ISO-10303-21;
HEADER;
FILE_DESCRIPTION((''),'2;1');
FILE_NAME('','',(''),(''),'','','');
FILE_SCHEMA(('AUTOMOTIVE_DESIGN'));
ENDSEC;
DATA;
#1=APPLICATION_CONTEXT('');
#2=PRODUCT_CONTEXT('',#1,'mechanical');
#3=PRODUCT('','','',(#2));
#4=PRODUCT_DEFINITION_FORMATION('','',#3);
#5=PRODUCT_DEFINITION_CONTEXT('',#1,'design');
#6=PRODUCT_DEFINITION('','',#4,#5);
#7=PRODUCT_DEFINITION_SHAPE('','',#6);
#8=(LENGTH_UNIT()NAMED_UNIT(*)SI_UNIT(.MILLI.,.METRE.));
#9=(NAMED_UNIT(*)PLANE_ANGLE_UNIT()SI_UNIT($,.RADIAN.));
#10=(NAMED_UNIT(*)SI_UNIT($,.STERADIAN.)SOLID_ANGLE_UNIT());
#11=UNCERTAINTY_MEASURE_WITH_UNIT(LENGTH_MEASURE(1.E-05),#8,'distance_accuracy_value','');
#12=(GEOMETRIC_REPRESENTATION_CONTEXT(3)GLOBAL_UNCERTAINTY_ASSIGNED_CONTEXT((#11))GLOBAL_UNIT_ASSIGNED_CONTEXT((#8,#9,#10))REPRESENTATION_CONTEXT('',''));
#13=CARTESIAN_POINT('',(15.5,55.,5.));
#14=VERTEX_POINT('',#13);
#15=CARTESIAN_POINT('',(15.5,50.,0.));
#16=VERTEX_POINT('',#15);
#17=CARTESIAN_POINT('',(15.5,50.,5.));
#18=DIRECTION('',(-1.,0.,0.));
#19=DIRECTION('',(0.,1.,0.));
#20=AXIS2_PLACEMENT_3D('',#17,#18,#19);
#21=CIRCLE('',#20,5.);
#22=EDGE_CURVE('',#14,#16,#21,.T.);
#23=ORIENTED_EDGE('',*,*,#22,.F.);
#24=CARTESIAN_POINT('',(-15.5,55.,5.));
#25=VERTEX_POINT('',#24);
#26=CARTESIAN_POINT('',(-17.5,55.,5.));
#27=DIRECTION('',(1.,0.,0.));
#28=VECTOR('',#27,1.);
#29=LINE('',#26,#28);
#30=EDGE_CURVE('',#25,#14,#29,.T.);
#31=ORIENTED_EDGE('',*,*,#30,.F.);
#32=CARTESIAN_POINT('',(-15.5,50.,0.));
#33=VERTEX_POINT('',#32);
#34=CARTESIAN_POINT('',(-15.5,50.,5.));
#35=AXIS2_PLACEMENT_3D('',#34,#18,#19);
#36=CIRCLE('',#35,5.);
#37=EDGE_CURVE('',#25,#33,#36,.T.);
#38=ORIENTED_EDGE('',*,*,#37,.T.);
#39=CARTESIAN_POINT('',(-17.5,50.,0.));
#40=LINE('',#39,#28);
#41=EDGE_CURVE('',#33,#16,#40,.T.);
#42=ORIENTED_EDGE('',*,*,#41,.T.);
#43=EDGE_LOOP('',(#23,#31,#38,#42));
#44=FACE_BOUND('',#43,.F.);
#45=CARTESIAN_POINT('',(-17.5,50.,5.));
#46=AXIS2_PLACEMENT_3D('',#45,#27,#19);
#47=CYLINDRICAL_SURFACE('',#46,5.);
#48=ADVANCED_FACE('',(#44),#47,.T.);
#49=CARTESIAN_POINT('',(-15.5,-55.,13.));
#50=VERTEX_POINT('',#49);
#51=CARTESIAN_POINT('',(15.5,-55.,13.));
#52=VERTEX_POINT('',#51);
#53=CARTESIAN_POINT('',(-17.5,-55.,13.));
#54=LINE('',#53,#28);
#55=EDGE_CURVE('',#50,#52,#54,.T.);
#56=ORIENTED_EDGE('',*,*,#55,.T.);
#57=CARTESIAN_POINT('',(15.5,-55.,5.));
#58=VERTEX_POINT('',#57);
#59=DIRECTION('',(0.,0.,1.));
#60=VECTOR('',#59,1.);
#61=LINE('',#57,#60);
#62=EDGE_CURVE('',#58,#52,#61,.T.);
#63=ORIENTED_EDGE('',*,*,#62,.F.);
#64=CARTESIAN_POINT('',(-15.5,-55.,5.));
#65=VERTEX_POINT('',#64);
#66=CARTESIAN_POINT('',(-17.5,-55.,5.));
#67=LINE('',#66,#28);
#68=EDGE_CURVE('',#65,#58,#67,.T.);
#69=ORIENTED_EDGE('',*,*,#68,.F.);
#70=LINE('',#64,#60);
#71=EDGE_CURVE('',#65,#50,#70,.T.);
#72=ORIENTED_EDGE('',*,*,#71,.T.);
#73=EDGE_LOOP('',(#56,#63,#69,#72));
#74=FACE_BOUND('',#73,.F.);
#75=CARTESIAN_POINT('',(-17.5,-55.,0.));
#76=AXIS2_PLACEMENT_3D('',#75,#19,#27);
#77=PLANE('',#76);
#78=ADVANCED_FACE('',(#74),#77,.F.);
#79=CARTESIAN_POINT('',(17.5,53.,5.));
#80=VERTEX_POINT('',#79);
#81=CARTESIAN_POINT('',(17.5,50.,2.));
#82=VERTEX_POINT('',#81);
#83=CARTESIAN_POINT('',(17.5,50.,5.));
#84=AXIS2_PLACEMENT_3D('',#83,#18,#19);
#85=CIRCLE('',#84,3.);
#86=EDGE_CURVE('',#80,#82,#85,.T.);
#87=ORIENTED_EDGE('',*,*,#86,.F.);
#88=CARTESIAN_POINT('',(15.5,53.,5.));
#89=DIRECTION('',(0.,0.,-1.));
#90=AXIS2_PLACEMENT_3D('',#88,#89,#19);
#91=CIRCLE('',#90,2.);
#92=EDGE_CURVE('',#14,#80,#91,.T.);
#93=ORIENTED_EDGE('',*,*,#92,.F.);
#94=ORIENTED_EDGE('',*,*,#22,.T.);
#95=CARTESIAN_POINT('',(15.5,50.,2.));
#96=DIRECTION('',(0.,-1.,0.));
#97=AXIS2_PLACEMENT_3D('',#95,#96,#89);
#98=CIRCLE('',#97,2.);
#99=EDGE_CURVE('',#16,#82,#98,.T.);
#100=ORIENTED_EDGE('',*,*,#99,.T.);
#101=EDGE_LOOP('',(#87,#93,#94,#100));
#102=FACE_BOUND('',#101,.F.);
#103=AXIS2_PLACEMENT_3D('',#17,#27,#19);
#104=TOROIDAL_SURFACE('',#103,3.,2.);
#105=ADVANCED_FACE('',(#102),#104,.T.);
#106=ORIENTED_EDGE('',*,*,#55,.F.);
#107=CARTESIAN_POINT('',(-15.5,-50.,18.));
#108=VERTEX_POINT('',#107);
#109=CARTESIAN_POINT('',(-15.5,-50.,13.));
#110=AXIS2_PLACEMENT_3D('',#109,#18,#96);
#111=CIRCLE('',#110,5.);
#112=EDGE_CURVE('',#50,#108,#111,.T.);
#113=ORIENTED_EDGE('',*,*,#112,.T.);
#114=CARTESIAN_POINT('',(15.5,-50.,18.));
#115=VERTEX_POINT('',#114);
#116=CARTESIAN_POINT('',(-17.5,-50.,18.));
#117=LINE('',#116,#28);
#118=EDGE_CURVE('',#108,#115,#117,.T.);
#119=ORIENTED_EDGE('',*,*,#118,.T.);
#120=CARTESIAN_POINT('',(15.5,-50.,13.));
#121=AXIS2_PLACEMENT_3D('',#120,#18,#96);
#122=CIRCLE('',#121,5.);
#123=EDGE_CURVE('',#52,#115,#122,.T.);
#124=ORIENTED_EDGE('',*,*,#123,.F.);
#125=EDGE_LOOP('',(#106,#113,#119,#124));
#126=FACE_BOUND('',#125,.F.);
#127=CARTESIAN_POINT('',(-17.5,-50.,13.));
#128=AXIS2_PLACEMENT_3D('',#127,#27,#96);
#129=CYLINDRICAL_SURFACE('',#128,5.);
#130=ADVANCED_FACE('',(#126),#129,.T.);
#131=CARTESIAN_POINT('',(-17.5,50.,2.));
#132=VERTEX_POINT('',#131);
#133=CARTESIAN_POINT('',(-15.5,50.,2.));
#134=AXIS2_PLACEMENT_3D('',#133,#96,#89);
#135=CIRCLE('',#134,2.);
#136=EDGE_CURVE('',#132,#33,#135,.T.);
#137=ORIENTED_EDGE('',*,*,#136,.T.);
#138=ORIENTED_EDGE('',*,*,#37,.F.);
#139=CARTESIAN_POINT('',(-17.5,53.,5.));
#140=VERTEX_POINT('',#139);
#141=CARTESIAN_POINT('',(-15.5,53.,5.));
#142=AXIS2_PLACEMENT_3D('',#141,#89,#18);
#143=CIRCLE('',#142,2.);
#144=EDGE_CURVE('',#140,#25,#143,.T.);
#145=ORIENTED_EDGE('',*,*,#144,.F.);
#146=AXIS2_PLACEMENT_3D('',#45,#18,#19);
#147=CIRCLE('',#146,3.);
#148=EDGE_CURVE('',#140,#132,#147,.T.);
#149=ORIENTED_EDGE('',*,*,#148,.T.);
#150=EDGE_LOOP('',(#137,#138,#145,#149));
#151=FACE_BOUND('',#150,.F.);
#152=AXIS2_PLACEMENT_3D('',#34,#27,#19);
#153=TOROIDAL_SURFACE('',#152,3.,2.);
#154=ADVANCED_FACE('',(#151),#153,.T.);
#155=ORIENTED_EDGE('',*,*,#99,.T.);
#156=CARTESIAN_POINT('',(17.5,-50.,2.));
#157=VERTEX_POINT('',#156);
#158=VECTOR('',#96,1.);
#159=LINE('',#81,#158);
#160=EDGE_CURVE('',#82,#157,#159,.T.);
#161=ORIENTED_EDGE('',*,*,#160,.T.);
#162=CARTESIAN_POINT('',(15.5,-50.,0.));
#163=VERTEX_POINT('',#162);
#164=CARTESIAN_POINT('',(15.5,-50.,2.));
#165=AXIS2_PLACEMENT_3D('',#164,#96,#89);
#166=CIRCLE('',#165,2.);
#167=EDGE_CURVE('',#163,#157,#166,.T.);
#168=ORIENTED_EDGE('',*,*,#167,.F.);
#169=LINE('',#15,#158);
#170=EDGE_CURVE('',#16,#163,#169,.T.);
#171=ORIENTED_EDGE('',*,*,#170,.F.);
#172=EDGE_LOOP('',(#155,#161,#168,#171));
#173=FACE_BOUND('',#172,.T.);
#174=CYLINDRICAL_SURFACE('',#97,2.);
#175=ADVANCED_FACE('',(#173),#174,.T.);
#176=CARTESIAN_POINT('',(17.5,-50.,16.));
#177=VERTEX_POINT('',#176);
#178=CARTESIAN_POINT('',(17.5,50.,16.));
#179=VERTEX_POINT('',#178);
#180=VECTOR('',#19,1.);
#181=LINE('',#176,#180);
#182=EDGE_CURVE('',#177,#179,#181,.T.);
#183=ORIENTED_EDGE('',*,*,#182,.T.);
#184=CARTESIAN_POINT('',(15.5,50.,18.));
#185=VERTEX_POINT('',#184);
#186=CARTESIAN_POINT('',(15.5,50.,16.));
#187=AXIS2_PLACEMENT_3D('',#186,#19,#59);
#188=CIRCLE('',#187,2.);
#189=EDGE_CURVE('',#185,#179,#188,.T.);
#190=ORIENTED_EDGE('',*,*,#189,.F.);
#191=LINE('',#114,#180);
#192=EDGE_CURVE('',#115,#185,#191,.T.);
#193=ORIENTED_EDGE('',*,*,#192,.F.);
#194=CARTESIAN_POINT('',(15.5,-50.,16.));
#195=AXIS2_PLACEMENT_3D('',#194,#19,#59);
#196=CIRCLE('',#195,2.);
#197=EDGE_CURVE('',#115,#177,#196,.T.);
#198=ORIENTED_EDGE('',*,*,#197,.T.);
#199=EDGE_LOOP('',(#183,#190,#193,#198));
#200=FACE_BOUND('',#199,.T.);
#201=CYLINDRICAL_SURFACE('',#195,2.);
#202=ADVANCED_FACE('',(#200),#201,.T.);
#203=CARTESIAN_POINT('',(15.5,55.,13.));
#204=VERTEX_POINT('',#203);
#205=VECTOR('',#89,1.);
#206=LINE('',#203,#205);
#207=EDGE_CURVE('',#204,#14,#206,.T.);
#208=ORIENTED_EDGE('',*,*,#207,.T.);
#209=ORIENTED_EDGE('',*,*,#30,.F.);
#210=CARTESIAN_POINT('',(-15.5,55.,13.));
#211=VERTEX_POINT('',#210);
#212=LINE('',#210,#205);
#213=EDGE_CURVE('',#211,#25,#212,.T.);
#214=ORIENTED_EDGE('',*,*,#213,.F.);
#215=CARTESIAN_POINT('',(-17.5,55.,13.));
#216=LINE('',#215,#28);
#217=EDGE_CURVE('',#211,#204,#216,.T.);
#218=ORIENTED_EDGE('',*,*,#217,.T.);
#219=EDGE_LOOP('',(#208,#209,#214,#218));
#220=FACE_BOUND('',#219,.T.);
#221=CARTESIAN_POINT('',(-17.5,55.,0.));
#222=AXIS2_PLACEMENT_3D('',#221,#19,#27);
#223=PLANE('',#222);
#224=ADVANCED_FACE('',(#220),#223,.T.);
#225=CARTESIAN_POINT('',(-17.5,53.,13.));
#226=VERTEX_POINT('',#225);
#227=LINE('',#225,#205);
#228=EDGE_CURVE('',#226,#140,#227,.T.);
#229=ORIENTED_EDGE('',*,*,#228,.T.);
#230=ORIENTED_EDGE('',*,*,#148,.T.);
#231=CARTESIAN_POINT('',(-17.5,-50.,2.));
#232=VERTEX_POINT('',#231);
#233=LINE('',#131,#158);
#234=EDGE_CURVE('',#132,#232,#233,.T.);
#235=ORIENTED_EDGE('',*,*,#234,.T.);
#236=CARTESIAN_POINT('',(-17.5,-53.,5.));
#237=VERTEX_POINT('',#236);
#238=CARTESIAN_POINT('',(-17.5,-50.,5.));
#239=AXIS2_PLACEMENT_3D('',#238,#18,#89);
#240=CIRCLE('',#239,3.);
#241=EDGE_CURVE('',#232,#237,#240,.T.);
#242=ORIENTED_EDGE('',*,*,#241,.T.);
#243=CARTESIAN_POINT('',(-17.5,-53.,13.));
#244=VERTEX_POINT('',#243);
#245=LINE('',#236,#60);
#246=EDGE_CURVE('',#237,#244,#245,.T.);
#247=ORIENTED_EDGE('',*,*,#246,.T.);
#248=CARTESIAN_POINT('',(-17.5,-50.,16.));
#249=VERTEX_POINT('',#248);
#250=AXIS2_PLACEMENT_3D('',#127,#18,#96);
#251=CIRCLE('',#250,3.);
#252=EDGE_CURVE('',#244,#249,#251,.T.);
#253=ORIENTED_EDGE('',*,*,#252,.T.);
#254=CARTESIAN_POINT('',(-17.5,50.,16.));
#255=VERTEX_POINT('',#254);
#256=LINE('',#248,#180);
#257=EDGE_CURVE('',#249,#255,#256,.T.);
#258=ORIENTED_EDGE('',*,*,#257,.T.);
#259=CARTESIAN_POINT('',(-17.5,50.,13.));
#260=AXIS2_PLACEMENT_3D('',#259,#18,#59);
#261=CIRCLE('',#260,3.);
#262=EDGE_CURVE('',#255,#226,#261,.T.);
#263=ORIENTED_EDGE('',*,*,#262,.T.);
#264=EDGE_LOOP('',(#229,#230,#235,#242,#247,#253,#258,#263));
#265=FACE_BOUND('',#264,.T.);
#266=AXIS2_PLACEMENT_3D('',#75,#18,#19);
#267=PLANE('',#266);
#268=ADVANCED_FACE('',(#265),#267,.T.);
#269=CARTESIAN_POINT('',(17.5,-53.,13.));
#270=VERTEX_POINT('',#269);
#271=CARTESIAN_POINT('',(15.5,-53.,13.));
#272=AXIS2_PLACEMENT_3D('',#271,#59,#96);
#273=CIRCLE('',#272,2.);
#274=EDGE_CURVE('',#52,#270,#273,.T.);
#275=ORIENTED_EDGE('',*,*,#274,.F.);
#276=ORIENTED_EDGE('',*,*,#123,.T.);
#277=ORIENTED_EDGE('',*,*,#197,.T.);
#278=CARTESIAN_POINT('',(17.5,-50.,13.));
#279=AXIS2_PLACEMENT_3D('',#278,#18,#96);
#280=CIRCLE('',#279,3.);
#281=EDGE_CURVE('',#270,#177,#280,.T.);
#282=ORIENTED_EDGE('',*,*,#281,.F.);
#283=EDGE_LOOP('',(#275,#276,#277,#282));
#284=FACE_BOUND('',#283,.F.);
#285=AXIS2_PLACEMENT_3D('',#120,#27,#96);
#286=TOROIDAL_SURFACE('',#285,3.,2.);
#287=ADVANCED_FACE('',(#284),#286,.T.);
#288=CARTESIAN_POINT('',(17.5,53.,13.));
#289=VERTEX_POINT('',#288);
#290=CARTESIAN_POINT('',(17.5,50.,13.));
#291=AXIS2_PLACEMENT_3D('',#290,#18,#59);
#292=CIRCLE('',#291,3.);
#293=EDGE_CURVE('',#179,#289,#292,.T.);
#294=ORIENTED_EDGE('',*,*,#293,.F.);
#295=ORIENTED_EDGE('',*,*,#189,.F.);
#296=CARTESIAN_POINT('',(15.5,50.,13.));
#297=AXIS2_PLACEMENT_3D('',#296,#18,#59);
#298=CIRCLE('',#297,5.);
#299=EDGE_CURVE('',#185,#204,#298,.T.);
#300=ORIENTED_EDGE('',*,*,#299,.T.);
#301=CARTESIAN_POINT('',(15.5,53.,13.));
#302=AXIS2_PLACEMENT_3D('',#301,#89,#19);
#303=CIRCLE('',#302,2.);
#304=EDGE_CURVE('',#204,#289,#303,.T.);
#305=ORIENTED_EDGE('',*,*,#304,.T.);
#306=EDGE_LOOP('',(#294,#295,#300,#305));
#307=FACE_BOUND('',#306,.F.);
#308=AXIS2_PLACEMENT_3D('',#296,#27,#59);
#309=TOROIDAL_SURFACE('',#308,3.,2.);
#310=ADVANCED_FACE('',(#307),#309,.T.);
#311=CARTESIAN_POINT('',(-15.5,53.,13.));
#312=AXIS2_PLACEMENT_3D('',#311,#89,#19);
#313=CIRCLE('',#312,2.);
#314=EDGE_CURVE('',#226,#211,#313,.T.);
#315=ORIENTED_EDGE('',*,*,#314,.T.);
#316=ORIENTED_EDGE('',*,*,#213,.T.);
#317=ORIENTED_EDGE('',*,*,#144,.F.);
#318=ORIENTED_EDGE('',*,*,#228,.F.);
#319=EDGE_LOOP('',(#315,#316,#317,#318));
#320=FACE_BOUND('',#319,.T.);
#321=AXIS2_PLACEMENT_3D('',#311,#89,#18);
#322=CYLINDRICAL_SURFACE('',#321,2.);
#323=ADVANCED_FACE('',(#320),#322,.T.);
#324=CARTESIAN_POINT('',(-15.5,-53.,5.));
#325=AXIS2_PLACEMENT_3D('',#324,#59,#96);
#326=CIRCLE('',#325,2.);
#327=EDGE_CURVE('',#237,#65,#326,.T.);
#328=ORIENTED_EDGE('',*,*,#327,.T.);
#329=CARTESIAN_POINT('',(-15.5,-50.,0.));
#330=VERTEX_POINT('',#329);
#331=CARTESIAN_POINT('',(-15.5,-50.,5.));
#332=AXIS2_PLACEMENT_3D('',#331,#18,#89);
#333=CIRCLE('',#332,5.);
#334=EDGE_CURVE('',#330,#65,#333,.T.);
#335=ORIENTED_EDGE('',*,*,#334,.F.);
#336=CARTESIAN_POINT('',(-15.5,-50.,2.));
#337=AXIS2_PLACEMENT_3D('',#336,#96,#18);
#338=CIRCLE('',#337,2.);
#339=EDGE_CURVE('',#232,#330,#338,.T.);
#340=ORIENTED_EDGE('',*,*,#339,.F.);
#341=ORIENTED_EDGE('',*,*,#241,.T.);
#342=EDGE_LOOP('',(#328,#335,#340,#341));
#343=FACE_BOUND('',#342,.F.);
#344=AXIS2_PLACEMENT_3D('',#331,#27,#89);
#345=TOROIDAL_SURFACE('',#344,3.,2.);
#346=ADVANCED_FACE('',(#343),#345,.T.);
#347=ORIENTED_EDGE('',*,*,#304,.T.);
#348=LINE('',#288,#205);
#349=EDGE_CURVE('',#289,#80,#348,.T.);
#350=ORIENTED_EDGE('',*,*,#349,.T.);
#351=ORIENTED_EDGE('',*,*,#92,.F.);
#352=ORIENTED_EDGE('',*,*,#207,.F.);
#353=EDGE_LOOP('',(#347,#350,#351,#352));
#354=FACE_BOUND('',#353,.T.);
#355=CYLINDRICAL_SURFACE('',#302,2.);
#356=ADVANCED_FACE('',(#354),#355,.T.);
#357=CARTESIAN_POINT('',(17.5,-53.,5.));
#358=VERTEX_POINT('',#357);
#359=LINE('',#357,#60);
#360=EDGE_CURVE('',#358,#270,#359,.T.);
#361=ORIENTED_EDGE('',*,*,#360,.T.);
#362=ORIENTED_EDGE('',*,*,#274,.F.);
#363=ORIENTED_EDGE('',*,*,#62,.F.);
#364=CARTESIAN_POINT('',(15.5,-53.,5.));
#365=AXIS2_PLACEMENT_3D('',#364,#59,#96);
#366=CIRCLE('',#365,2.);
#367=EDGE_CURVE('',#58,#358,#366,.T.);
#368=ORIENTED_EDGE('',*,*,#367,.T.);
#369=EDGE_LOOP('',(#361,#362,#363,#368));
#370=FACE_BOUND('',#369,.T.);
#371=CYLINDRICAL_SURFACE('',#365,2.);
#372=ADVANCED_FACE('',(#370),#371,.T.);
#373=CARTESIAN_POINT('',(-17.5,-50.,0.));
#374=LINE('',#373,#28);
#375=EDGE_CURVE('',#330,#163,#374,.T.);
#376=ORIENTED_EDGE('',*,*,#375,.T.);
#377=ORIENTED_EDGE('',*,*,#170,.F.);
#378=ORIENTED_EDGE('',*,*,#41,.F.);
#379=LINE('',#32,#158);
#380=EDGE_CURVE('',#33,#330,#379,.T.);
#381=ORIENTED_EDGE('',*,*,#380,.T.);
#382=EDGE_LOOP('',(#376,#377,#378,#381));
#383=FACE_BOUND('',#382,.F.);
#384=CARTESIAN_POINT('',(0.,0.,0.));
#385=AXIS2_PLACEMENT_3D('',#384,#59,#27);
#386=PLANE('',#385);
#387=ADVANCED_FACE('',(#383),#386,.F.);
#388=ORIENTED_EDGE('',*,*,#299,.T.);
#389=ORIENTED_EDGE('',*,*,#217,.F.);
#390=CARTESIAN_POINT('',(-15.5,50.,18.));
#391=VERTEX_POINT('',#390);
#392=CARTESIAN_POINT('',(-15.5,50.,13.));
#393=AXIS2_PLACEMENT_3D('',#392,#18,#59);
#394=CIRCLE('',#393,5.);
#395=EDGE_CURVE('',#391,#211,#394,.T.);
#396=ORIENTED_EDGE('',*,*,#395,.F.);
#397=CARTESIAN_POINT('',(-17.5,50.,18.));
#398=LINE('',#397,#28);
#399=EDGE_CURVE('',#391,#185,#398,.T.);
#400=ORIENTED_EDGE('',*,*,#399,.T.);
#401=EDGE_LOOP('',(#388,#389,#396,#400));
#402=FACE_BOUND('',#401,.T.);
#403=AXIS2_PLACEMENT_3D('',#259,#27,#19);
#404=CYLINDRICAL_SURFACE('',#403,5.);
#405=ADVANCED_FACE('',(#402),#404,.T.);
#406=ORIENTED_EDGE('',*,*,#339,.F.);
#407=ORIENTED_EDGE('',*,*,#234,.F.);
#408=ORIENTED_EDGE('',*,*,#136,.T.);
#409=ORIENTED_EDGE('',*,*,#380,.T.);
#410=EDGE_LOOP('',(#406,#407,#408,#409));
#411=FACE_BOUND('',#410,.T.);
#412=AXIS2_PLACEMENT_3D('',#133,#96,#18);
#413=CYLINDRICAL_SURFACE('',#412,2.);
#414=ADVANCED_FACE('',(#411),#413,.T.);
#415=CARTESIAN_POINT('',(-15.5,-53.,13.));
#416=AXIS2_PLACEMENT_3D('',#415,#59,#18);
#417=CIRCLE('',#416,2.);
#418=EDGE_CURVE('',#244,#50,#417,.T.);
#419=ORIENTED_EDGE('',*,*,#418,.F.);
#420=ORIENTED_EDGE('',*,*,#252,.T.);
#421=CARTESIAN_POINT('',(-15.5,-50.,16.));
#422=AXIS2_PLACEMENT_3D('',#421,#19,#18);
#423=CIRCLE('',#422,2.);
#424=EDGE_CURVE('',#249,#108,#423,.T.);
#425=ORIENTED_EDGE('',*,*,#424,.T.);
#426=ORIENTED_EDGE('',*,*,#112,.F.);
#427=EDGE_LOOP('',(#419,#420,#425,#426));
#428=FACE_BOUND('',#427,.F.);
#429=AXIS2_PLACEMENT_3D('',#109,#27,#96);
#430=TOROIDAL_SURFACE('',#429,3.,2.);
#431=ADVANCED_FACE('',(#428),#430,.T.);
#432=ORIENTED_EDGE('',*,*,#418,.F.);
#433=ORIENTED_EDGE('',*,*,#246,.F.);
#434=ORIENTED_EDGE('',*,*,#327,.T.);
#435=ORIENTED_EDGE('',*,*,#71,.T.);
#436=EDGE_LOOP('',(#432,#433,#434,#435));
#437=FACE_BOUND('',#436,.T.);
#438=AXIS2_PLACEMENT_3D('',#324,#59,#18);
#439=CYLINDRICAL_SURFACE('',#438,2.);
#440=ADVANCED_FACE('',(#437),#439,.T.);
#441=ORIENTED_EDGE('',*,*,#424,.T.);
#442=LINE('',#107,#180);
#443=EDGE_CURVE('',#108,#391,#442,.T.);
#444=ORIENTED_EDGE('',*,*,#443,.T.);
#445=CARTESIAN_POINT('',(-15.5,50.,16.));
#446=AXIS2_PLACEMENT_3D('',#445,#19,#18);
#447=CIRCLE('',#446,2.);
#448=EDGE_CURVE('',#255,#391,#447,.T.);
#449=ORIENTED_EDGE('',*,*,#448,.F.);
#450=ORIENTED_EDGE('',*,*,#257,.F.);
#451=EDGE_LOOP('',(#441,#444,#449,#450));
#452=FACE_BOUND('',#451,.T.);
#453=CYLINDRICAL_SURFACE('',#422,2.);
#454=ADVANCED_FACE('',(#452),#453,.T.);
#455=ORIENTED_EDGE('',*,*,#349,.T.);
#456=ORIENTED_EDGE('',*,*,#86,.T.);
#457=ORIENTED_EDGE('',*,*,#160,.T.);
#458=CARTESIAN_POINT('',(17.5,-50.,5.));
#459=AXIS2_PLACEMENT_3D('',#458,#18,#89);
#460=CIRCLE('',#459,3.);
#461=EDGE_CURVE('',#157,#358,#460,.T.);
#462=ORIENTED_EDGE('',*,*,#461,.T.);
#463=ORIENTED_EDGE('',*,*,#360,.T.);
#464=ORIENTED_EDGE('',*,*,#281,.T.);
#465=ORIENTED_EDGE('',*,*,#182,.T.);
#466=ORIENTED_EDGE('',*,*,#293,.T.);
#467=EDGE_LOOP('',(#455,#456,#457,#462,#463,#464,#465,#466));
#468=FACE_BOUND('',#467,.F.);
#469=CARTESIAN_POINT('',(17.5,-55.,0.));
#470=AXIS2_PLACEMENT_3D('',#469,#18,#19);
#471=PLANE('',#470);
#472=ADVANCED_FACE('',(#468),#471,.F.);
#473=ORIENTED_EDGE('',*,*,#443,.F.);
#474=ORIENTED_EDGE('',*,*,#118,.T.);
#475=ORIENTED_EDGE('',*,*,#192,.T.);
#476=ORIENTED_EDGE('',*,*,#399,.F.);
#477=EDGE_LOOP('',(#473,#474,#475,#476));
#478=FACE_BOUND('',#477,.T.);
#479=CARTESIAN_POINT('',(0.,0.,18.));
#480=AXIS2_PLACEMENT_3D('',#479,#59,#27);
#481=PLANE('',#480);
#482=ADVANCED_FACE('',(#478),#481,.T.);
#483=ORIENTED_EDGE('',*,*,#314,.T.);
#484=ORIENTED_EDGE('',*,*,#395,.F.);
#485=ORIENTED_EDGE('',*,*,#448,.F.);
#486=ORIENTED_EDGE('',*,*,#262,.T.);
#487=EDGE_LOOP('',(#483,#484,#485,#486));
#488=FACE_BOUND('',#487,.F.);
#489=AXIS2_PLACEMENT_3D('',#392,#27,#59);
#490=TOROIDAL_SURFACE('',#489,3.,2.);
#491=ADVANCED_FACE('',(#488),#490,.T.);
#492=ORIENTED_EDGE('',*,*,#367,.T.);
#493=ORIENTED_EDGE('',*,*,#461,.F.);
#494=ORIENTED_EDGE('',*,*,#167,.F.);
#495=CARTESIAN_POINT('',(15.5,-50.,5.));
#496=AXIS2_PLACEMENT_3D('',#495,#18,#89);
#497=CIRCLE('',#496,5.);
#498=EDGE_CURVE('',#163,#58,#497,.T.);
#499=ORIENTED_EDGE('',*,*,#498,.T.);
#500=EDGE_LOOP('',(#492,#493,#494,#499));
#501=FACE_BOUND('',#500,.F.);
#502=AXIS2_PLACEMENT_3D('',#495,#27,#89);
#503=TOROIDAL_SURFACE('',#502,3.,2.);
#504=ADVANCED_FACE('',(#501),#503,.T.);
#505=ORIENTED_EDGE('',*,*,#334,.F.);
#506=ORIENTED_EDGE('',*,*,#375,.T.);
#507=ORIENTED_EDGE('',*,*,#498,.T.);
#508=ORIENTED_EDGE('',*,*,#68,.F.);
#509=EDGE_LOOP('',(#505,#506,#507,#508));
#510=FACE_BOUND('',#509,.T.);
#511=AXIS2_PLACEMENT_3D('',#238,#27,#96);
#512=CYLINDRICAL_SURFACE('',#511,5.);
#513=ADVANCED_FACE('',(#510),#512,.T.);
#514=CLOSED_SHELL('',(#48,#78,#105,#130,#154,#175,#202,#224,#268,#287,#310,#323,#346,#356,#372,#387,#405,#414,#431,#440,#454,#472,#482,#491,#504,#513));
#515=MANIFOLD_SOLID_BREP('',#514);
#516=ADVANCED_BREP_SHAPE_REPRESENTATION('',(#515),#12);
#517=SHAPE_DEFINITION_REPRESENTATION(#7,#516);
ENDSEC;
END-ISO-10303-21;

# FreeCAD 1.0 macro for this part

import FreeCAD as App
import Part
import Sketcher

V = App.Vector
Q = App.Units.Quantity


def edges_at(feature, points):
    """Names of the edges that pass closest to the given points."""
    edges = feature.Shape.Edges
    near = lambda p: min(range(len(edges)), key=lambda i: edges[i].distToShape(Part.Vertex(*p))[0])
    return sorted({f"Edge{near(p) + 1}" for p in points})


def add_polygon(sketch, points):
    """Adds a closed chain of lines whose ends are joined by coincident constraints."""
    first, n = sketch.GeometryCount, len(points)
    for a, b in zip(points, points[1:] + points[:1]):
        sketch.addGeometry(Part.LineSegment(App.Vector(*a, 0), App.Vector(*b, 0)), False)
    for i in range(n):
        sketch.addConstraint(Sketcher.Constraint("Coincident", first + i, 2, first + (i + 1) % n, 1))

doc = App.newDocument("Part")
body = doc.addObject("PartDesign::Body", "Body")

# Sketch on XY plane
sketch1 = doc.addObject("Sketcher::SketchObject", "Sketch")
body.addObject(sketch1)
sketch1.AttachmentSupport = (doc.XY_Plane, [""])
sketch1.MapMode = "FlatFace"
add_polygon(sketch1, [(-18, 55), (-18, -55), (18, -55), (18, 55)])  # lines 0-3
sketch1.addConstraint([
    Sketcher.Constraint("Vertical", 0),
    Sketcher.Constraint("Horizontal", 1),
    Sketcher.Constraint("Vertical", 2),
    Sketcher.Constraint("Horizontal", 3),
    Sketcher.Constraint("Symmetric", 0, 2, 2, 2, -1, 1),
    Sketcher.Constraint("DistanceX", 1, 1, 1, 2, Q("35 mm")),
    Sketcher.Constraint("DistanceY", 0, 2, 0, 1, Q("110 mm")),
])
pad1 = doc.addObject("PartDesign::Pad", "Pad")
body.addObject(pad1)
pad1.Profile = sketch1
pad1.Length = 18
doc.recompute()

fillet = doc.addObject("PartDesign::Fillet", "Fillet")
body.addObject(fillet)
fillet.Base = (pad1, edges_at(pad1, [
    (0, 55, 0),
    (0, 55, 18),
    (0, -55, 18),
    (0, -55, 0),
]))
fillet.Radius = 5
doc.recompute()

fillet2 = doc.addObject("PartDesign::Fillet", "Fillet001")
body.addObject(fillet2)
fillet2.Base = (fillet, edges_at(fillet, [(-17.5, 0, 18), (-17.5, 53.536, 16.536), (17.5, 0, 18)]))
fillet2.Radius = 2

doc.recompute()
